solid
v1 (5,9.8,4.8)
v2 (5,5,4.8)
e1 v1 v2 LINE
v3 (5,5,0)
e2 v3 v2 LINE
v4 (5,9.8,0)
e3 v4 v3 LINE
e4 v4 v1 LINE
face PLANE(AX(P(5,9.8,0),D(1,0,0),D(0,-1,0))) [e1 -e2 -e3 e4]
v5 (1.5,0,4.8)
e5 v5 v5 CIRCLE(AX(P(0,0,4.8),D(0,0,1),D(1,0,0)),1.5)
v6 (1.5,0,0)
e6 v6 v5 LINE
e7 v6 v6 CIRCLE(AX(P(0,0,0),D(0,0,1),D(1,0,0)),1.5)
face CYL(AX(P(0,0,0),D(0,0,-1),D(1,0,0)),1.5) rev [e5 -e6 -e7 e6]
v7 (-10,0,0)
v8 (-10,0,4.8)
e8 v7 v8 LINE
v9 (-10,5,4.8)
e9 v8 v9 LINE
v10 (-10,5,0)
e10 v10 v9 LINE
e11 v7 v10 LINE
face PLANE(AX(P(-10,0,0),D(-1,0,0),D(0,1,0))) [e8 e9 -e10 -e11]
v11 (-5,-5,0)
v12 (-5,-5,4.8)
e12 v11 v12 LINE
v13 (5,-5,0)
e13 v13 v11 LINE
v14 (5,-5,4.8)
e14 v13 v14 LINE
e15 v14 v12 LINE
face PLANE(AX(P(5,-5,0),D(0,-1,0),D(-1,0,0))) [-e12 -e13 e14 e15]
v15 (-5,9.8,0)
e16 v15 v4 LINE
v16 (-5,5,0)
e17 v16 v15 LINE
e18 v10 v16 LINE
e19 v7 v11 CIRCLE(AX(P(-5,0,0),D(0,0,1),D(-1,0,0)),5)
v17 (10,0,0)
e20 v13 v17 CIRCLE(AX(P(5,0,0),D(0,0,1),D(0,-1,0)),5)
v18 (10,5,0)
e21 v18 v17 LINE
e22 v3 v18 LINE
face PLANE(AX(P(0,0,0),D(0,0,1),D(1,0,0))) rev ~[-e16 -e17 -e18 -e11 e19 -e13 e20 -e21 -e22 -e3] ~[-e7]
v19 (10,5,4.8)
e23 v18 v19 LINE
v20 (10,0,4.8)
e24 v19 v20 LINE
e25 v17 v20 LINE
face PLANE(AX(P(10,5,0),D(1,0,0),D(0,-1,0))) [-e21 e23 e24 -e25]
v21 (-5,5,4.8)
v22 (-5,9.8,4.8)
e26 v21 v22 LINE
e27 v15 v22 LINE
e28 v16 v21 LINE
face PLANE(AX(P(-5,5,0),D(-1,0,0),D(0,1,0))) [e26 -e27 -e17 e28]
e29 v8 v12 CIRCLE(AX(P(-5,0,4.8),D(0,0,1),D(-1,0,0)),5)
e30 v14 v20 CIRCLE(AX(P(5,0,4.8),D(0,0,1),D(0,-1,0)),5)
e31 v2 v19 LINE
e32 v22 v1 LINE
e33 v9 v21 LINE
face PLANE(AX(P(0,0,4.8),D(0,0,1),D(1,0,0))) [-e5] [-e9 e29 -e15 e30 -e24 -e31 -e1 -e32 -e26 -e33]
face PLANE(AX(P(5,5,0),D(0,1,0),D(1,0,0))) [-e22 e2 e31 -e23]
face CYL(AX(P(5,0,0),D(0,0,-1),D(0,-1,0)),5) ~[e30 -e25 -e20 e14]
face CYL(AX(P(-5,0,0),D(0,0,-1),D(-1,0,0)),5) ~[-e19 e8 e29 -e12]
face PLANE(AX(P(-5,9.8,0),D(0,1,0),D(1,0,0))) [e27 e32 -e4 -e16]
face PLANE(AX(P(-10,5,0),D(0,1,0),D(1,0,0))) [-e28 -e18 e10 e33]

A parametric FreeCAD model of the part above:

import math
import FreeCAD as App
import Part
import Sketcher

V = App.Vector

doc = App.newDocument("Part")
body = doc.addObject("PartDesign::Body", "Body")

sketch1 = doc.addObject("Sketcher::SketchObject", "Sketch")
body.addObject(sketch1)
sketch1.AttachmentSupport = (doc.XY_Plane, [""])
sketch1.MapMode = "FlatFace"
sketch1.addGeometry(Part.LineSegment(V(5, 9.8, 0), V(-5, 9.8, 0)), False)
sketch1.addGeometry(Part.LineSegment(V(-5, 9.8, 0), V(-5, 5, 0)), False)
sketch1.addGeometry(Part.LineSegment(V(-5, 5, 0), V(-10, 5, 0)), False)
sketch1.addGeometry(Part.LineSegment(V(-10, 5, 0), V(-10, 0, 0)), False)
sketch1.addGeometry(Part.ArcOfCircle(Part.Circle(V(-5, 0, 0), V(0, 0, 1), 5), math.radians(180), math.radians(270)), False)
sketch1.addGeometry(Part.LineSegment(V(-5, -5, 0), V(5, -5, 0)), False)
sketch1.addGeometry(Part.ArcOfCircle(Part.Circle(V(5, 0, 0), V(0, 0, 1), 5), math.radians(-90), math.radians(0)), False)
sketch1.addGeometry(Part.LineSegment(V(10, 0, 0), V(10, 5, 0)), False)
sketch1.addGeometry(Part.LineSegment(V(10, 5, 0), V(5, 5, 0)), False)
sketch1.addGeometry(Part.LineSegment(V(5, 5, 0), V(5, 9.8, 0)), False)
sketch1.addGeometry(Part.Circle(V(0, 0, 0), V(0, 0, 1), 1.5), False)
sketch1.addConstraint(Sketcher.Constraint("Coincident", 0, 2, 1, 1))
sketch1.addConstraint(Sketcher.Constraint("Coincident", 1, 2, 2, 1))
sketch1.addConstraint(Sketcher.Constraint("Coincident", 2, 2, 3, 1))
sketch1.addConstraint(Sketcher.Constraint("Tangent", 3, 2, 4, 1))
sketch1.addConstraint(Sketcher.Constraint("Tangent", 4, 2, 5, 1))
sketch1.addConstraint(Sketcher.Constraint("Tangent", 5, 2, 6, 1))
sketch1.addConstraint(Sketcher.Constraint("Tangent", 6, 2, 7, 1))
sketch1.addConstraint(Sketcher.Constraint("Coincident", 7, 2, 8, 1))
sketch1.addConstraint(Sketcher.Constraint("Coincident", 8, 2, 9, 1))
sketch1.addConstraint(Sketcher.Constraint("Coincident", 9, 2, 0, 1))
sketch1.addConstraint(Sketcher.Constraint("Horizontal", 0))
sketch1.addConstraint(Sketcher.Constraint("Vertical", 1))
sketch1.addConstraint(Sketcher.Constraint("Horizontal", 2))
sketch1.addConstraint(Sketcher.Constraint("Vertical", 3))
sketch1.addConstraint(Sketcher.Constraint("Horizontal", 5))
sketch1.addConstraint(Sketcher.Constraint("Vertical", 7))
sketch1.addConstraint(Sketcher.Constraint("Horizontal", 8))
sketch1.addConstraint(Sketcher.Constraint("Vertical", 9))
sketch1.addConstraint(Sketcher.Constraint("Coincident", 10, 3, -1, 1))
sketch1.addConstraint(Sketcher.Constraint("Equal", 4, 6))
sketch1.addConstraint(Sketcher.Constraint("Symmetric", 4, 3, 6, 3, -1, 1))
sketch1.addConstraint(Sketcher.Constraint("Symmetric", 1, 2, 5, 2, -1, 1))
sketch1.addConstraint(Sketcher.Constraint("Symmetric", 4, 2, 8, 2, -1, 1))
sketch1.addConstraint(Sketcher.Constraint("Diameter", 10, 3.0))
sketch1.addConstraint(Sketcher.Constraint("Radius", 4, 5.0))
sketch1.addConstraint(Sketcher.Constraint("DistanceX", 0, 2, 0, 1, 10.0))
sketch1.addConstraint(Sketcher.Constraint("DistanceY", 1, 2, 1, 1, 4.8))
pad1 = doc.addObject("PartDesign::Pad", "Pad")
body.addObject(pad1)
pad1.Profile = sketch1
pad1.Length = 4.8

doc.recompute()
